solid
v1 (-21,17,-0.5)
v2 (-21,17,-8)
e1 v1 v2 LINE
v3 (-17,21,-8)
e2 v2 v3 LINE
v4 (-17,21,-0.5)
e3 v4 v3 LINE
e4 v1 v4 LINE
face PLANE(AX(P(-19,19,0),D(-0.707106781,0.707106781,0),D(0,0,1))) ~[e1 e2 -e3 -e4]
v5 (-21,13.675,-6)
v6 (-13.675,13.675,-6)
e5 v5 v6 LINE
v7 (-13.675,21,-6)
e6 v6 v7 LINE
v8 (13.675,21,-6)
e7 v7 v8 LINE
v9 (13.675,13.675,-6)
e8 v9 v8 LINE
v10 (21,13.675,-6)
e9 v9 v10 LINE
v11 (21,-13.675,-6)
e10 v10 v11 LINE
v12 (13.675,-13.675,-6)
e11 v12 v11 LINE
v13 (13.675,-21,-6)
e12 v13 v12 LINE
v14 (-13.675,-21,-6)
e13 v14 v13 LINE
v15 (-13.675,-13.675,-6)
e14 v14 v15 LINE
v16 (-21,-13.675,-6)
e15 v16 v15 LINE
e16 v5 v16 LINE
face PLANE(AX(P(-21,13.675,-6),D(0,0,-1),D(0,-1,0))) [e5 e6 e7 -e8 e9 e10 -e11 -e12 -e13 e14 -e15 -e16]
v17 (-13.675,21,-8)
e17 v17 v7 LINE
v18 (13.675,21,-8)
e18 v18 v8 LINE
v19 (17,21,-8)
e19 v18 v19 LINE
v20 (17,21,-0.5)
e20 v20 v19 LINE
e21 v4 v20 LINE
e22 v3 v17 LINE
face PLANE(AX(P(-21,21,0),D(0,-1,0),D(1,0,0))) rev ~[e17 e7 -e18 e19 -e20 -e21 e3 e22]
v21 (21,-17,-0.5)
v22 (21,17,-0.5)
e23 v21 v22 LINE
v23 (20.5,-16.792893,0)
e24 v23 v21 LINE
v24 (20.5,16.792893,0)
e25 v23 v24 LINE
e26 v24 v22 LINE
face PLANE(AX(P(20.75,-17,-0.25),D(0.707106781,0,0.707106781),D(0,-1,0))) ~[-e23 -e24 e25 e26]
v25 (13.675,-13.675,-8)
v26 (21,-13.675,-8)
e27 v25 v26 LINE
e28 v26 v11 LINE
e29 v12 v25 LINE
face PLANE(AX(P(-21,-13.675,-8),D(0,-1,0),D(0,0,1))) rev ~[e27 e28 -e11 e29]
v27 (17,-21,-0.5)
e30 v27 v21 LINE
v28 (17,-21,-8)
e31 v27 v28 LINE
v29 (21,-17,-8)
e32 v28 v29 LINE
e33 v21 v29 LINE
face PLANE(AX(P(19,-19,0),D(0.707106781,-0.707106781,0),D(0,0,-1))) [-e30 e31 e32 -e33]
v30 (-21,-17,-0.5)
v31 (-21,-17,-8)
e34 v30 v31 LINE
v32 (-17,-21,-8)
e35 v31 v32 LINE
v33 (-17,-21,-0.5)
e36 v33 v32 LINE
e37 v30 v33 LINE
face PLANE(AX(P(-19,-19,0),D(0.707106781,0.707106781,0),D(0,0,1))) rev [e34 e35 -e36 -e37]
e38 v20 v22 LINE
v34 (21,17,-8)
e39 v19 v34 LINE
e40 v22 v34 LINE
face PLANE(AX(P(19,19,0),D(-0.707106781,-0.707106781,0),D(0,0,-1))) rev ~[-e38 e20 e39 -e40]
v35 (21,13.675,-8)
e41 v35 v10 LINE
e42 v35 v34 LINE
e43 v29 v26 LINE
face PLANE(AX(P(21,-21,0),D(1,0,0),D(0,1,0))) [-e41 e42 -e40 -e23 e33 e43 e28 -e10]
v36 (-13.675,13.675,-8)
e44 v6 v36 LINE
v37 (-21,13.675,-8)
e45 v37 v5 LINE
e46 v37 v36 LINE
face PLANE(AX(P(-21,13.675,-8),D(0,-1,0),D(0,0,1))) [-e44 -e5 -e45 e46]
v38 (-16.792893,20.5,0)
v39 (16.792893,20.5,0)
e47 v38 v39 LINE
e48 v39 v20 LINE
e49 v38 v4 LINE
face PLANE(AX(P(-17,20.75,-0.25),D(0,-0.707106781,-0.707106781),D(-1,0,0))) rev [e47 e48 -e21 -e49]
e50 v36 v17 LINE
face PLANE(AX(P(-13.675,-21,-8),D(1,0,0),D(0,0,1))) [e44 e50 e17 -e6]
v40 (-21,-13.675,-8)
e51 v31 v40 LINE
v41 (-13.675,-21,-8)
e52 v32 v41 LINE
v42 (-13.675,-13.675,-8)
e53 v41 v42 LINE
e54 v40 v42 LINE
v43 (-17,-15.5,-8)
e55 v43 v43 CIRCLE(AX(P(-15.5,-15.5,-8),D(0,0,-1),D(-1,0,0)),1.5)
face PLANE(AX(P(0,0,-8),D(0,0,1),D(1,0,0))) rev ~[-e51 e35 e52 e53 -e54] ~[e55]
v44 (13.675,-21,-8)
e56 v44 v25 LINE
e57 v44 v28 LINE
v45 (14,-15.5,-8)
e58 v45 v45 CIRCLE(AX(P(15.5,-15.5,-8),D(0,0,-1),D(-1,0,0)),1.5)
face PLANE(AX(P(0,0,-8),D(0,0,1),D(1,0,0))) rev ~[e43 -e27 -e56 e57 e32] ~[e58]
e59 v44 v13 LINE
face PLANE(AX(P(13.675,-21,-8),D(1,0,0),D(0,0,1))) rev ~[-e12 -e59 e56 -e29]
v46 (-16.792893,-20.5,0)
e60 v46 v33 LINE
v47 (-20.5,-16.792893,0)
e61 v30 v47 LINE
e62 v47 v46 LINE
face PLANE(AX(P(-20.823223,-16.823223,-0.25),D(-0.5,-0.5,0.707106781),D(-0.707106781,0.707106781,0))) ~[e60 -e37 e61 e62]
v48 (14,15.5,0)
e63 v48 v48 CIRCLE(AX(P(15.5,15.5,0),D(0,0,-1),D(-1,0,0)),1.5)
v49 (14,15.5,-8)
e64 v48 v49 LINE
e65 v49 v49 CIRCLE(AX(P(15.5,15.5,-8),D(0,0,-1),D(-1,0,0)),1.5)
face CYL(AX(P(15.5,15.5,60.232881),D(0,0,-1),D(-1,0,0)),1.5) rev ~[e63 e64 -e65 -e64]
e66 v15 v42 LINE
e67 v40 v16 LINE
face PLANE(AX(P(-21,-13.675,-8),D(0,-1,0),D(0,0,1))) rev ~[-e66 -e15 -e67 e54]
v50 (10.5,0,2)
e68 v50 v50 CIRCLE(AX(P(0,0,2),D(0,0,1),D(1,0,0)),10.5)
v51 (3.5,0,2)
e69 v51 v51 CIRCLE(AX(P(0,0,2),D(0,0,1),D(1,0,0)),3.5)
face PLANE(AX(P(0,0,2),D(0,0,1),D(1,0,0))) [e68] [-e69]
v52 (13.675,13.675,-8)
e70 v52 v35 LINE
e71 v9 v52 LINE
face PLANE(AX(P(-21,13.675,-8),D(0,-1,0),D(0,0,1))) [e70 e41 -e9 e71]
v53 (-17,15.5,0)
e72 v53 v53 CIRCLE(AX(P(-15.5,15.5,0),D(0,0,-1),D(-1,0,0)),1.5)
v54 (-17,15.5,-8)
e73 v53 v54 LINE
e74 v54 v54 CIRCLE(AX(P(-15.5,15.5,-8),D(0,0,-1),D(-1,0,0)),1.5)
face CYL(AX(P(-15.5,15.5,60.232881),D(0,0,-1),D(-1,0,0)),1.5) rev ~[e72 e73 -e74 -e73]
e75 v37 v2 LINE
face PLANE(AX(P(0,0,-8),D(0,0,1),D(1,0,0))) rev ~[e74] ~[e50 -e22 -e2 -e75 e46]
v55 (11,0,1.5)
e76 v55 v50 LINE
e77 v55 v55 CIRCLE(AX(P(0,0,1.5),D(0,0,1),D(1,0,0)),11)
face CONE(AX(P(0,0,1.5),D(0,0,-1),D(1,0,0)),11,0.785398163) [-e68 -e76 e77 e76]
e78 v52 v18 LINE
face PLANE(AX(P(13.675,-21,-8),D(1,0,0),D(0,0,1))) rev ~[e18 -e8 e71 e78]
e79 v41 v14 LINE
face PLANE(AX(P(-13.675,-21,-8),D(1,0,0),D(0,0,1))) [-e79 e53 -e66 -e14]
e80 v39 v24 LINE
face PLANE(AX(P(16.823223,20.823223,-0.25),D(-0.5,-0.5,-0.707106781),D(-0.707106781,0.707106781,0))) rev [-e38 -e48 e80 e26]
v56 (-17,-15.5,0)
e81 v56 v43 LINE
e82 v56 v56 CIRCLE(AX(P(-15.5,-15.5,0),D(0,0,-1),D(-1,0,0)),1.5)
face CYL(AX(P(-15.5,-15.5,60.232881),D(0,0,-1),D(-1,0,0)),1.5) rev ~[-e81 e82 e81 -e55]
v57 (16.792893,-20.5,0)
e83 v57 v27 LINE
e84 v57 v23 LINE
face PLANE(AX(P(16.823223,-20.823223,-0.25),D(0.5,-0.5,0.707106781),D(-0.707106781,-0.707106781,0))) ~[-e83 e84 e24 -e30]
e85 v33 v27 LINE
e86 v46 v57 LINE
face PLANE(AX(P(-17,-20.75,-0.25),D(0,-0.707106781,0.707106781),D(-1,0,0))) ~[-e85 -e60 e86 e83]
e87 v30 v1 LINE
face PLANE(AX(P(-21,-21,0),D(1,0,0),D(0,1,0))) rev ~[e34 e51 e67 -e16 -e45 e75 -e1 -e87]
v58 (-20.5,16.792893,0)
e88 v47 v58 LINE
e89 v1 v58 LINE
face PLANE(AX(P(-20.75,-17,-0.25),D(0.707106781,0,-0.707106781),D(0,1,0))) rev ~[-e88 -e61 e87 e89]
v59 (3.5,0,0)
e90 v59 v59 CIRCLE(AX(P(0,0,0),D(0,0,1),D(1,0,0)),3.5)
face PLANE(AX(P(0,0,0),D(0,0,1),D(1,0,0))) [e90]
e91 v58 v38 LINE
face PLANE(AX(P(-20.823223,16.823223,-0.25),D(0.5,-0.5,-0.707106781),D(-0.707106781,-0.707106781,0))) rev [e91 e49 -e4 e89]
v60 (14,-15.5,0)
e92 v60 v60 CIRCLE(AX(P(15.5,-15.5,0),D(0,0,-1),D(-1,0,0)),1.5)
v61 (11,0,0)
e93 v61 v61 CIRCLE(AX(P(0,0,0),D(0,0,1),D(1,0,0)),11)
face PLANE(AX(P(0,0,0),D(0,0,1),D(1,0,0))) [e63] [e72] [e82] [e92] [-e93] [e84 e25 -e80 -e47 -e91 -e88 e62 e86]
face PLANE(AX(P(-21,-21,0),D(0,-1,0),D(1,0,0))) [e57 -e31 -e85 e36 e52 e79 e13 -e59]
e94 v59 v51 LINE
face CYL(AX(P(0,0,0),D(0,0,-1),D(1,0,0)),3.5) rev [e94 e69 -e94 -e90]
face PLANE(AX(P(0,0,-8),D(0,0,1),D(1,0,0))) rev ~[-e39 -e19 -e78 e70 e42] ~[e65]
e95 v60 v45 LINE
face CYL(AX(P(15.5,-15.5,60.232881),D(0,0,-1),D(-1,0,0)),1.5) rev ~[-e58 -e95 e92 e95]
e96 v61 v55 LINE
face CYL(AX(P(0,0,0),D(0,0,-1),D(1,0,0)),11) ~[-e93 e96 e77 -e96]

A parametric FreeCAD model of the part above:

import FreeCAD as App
import Part
import Sketcher

V = App.Vector


def edges_at(feature, points):
    """Names of the edges that pass closest to the given points."""
    edges = feature.Shape.Edges
    near = lambda p: min(range(len(edges)), key=lambda i: edges[i].distToShape(Part.Vertex(*p))[0])
    return sorted({f"Edge{near(p) + 1}" for p in points})


def add_polygon(sketch, points):
    """Adds a closed chain of lines whose ends are joined by coincident constraints."""
    first, n = sketch.GeometryCount, len(points)
    for a, b in zip(points, points[1:] + points[:1]):
        sketch.addGeometry(Part.LineSegment(App.Vector(*a, 0), App.Vector(*b, 0)), False)
    for i in range(n):
        sketch.addConstraint(Sketcher.Constraint("Coincident", first + i, 2, first + (i + 1) % n, 1))

doc = App.newDocument("Part")
body = doc.addObject("PartDesign::Body", "Body")

# Sketch on XY plane
sketch1 = body.newObject("Sketcher::SketchObject", "Sketch")
sketch1.AttachmentSupport = (doc.getObject("XY_Plane"), [""])
sketch1.MapMode = "FlatFace"
add_polygon(sketch1, [(-21, 21), (-21, -21), (21, -21), (21, 21)])  # lines 0-3
sketch1.addConstraint([
    Sketcher.Constraint("Vertical", 0),
    Sketcher.Constraint("Horizontal", 1),
    Sketcher.Constraint("Vertical", 2),
    Sketcher.Constraint("Horizontal", 3),
    Sketcher.Constraint("Symmetric", 0, 2, 2, 2, -1, 1),
    Sketcher.Constraint("Equal", 3, 0),
    Sketcher.Constraint("DistanceX", 1, 1, 1, 2, 42.0),
])
pad1 = body.newObject("PartDesign::Pad", "Pad")
pad1.Profile = sketch1
pad1.Length = 8
pad1.Reversed = True

# Sketch on XY plane
sketch2 = body.newObject("Sketcher::SketchObject", "Sketch001")
sketch2.AttachmentSupport = (doc.getObject("XY_Plane"), [""])
sketch2.MapMode = "FlatFace"
sketch2.addGeometry([
    Part.Circle(V(0, 0, 0), V(0, 0, 1), 11),
    Part.Circle(V(0, 0, 0), V(0, 0, 1), 3.5),
], False)
sketch2.addConstraint([
    Sketcher.Constraint("Coincident", 0, 3, -1, 1),
    Sketcher.Constraint("Coincident", 1, 3, -1, 1),
    Sketcher.Constraint("Diameter", 0, 22.0),
    Sketcher.Constraint("Diameter", 1, 7.0),
])
pad2 = body.newObject("PartDesign::Pad", "Pad001")
pad2.Profile = sketch2
pad2.Length = 2

# Sketch on XY plane
sketch3 = body.newObject("Sketcher::SketchObject", "Sketch002")
sketch3.AttachmentSupport = (doc.getObject("XY_Plane"), [""])
sketch3.MapMode = "FlatFace"
sketch3.addGeometry([
    Part.Circle(V(15.5, 15.5, 0), V(0, 0, 1), 1.5),
    Part.Circle(V(15.5, -15.5, 0), V(0, 0, 1), 1.5),
    Part.Circle(V(-15.5, -15.5, 0), V(0, 0, 1), 1.5),
    Part.Circle(V(-15.5, 15.5, 0), V(0, 0, 1), 1.5),
], False)
sketch3.addConstraint([
    Sketcher.Constraint("Equal", 0, 1),
    Sketcher.Constraint("Equal", 1, 2),
    Sketcher.Constraint("Equal", 2, 3),
    Sketcher.Constraint("Symmetric", 0, 3, 2, 3, -1, 1),
    Sketcher.Constraint("Symmetric", 1, 3, 3, 3, -1, 1),
    Sketcher.Constraint("Symmetric", 1, 3, 2, 3, -2),
    Sketcher.Constraint("Diameter", 0, 3.0),
    Sketcher.Constraint("DistanceY", 1, 3, 0, 3, 31.0),
    Sketcher.Constraint("DistanceX", 2, 3, 1, 3, 31.0),
])
doc.recompute()
hole = body.newObject("PartDesign::Hole", "Hole")
hole.Profile = sketch3
hole.ThreadType = "None"
hole.Diameter = 3
hole.DepthType = "ThroughAll"

# Sketch on XZ plane
sketch4 = body.newObject("Sketcher::SketchObject", "Sketch003")
sketch4.AttachmentSupport = (doc.getObject("XZ_Plane"), [""])
sketch4.MapMode = "FlatFace"
sketch4.AttachmentOffset = App.Placement(V(0, 0, 21), App.Rotation())
add_polygon(sketch4, [(-13.7, -6), (-13.7, -8), (13.7, -8), (13.7, -6)])  # lines 0-3
sketch4.addConstraint([
    Sketcher.Constraint("Vertical", 0),
    Sketcher.Constraint("Horizontal", 1),
    Sketcher.Constraint("Vertical", 2),
    Sketcher.Constraint("Horizontal", 3),
    Sketcher.Constraint("DistanceY", 0, 2, 0, 1, 2.0),
    Sketcher.Constraint("DistanceY", 0, 2, -1, 1, 8.0),
    Sketcher.Constraint("DistanceX", 1, 1, 1, 2, 27.35),
    Sketcher.Constraint("DistanceX", 0, 2, -1, 1, 13.675),
])
pocket1 = body.newObject("PartDesign::Pocket", "Pocket")
pocket1.Profile = sketch4
pocket1.Type = "ThroughAll"

# Sketch on YZ plane
sketch5 = body.newObject("Sketcher::SketchObject", "Sketch004")
sketch5.AttachmentSupport = (doc.getObject("YZ_Plane"), [""])
sketch5.MapMode = "FlatFace"
sketch5.AttachmentOffset = App.Placement(V(0, 0, -21), App.Rotation())
add_polygon(sketch5, [(13.7, -6), (13.7, -8), (-13.7, -8), (-13.7, -6)])  # lines 0-3
sketch5.addConstraint([
    Sketcher.Constraint("Vertical", 0),
    Sketcher.Constraint("Horizontal", 1),
    Sketcher.Constraint("Vertical", 2),
    Sketcher.Constraint("Horizontal", 3),
    Sketcher.Constraint("DistanceY", 0, 2, 0, 1, 2.0),
    Sketcher.Constraint("DistanceY", 0, 2, -1, 1, 8.0),
    Sketcher.Constraint("DistanceX", 1, 2, 1, 1, 27.35),
    Sketcher.Constraint("DistanceX", -1, 1, 0, 2, 13.675),
])
pocket2 = body.newObject("PartDesign::Pocket", "Pocket001")
pocket2.Profile = sketch5
pocket2.Type = "ThroughAll"
pocket2.Reversed = True
doc.recompute()

chamfer = body.newObject("PartDesign::Chamfer", "Chamfer")
chamfer.Base = (pocket2, edges_at(pocket2, [
    (-21, -21, -4),
    (-21, 21, -4),
    (21, -21, -4),
    (21, 21, -4),
]))
chamfer.Size = 4
doc.recompute()

chamfer2 = body.newObject("PartDesign::Chamfer", "Chamfer001")
chamfer2.Base = (chamfer, edges_at(chamfer, [
    (-11, 0, 2),
    (-21, 0, 0),
    (-19, -19, 0),
    (0, -21, 0),
    (19, -19, 0),
    (21, 0, 0),
    (19, 19, 0),
    (0, 21, 0),
    (-19, 19, 0),
]))
chamfer2.Size = 0.5

doc.recompute()
